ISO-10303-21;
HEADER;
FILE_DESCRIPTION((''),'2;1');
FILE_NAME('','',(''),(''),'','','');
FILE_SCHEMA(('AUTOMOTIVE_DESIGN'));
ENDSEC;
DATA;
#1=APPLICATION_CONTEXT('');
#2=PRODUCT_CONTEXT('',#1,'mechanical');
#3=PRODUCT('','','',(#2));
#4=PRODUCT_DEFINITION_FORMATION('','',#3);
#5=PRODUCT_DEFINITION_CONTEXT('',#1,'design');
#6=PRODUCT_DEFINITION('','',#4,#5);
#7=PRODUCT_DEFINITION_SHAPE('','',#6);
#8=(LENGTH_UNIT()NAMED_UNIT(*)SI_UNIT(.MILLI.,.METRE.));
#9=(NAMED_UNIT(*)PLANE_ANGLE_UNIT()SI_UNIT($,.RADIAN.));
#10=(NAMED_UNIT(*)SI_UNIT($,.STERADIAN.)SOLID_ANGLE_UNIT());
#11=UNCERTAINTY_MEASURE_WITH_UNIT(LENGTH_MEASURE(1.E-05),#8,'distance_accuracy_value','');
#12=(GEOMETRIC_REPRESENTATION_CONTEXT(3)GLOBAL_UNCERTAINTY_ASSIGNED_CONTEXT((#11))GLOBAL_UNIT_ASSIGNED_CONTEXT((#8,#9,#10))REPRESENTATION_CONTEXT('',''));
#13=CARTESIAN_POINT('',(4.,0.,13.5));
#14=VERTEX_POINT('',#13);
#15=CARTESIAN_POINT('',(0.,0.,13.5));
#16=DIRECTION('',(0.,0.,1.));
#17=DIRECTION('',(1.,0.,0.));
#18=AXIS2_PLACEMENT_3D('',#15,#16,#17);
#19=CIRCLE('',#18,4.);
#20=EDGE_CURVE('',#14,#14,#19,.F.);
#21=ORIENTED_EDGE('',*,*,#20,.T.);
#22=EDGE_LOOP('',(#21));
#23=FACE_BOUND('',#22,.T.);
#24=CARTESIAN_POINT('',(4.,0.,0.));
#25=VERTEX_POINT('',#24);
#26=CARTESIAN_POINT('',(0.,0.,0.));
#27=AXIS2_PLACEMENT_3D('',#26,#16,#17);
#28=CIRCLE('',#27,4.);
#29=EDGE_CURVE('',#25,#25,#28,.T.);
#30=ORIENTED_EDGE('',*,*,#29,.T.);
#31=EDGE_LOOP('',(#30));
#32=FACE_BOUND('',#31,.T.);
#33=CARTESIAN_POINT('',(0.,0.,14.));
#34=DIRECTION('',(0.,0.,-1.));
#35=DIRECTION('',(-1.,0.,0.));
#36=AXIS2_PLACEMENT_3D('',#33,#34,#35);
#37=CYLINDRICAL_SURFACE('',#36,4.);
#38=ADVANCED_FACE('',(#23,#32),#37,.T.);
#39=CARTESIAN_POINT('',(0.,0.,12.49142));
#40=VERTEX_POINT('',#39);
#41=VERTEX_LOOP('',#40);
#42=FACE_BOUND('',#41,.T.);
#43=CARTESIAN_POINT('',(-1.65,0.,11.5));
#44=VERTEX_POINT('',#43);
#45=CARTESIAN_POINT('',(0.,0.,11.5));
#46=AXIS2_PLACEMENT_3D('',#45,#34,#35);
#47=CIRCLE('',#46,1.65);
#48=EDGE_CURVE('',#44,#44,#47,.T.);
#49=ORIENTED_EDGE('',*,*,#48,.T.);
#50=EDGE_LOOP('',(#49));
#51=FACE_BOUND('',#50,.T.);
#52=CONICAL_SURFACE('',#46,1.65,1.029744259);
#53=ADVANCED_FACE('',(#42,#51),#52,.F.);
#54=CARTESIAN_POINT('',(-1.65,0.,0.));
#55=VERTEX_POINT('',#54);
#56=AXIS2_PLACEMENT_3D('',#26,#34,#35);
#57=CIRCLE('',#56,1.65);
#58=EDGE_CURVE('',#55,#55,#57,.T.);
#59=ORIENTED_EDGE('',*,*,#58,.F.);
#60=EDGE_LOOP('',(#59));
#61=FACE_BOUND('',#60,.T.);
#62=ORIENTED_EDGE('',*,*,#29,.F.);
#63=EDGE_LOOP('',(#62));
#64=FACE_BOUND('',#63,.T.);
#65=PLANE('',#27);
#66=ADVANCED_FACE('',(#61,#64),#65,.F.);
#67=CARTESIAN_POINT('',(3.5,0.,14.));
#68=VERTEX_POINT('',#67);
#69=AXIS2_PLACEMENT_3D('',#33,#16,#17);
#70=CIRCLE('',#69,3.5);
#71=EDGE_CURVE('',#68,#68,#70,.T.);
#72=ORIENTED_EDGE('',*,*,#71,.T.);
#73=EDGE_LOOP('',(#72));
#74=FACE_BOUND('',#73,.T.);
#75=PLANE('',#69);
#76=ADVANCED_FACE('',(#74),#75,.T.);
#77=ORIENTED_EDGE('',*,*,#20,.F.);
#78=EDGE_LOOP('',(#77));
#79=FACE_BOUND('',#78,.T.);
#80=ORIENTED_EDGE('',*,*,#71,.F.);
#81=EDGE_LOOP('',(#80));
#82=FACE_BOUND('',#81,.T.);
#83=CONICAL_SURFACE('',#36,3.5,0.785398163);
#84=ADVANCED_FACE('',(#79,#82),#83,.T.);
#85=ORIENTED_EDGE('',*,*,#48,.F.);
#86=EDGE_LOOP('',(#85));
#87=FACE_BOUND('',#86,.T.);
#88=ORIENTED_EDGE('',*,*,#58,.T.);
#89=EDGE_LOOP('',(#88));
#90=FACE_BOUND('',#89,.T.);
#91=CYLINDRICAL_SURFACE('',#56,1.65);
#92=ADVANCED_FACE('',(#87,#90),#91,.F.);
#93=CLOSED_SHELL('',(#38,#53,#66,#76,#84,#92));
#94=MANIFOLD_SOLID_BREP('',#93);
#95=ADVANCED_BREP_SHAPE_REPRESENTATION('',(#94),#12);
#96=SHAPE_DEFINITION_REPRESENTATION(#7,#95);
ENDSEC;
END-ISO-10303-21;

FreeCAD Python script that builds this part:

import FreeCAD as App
import Part
import Sketcher
from FreeCAD import Vector


def edges_at(feature, points):
    """Names of the edges that pass closest to the given points."""
    edges = feature.Shape.Edges
    near = lambda p: min(range(len(edges)), key=lambda i: edges[i].distToShape(Part.Vertex(*p))[0])
    return sorted({f"Edge{near(p) + 1}" for p in points})

doc = App.newDocument("Part")
body = doc.addObject("PartDesign::Body", "Body")

# Sketch on XY plane
sketch1 = body.newObject("Sketcher::SketchObject", "Sketch")
sketch1.AttachmentSupport = (doc.getObject("XY_Plane"), [""])
sketch1.MapMode = "FlatFace"
sketch1.addGeometry(Part.Circle(Vector(0, 0, 0), Vector(0, 0, 1), 4), False)
sketch1.addConstraint([
    Sketcher.Constraint("Coincident", 0, 3, -1, 1),
    Sketcher.Constraint("Diameter", 0, 8.0),
])
pad1 = body.newObject("PartDesign::Pad", "Pad")
pad1.Profile = sketch1
pad1.Length = 14
doc.recompute()

chamfer = body.newObject("PartDesign::Chamfer", "Chamfer")
chamfer.Base = (pad1, edges_at(pad1, [(-4, 0, 14)]))
chamfer.Size = 0.5

# Sketch on XY plane
sketch2 = body.newObject("Sketcher::SketchObject", "Sketch001")
sketch2.AttachmentSupport = (doc.getObject("XY_Plane"), [""])
sketch2.MapMode = "FlatFace"
sketch2.addGeometry(Part.Circle(Vector(0, 0, 0), Vector(0, 0, 1), 1.6), False)
sketch2.addConstraint([
    Sketcher.Constraint("Coincident", 0, 3, -1, 1),
    Sketcher.Constraint("Diameter", 0, 3.3),
])
doc.recompute()
hole = body.newObject("PartDesign::Hole", "Hole")
hole.Profile = sketch2
hole.ThreadType = "None"
hole.Diameter = 3.3
hole.DepthType = "Dimension"
hole.Depth = 11.5
hole.DrillPoint = "Angled"
hole.DrillPointAngle = 118
hole.Reversed = True

doc.recompute()
